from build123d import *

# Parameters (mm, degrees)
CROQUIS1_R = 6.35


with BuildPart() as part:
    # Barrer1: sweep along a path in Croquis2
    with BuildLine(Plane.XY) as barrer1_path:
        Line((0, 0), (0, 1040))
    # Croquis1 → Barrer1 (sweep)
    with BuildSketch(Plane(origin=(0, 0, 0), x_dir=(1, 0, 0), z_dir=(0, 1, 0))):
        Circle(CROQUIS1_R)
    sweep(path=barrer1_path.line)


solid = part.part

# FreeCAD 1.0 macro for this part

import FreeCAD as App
import Part
import Sketcher
from FreeCAD import Vector

doc = App.newDocument("Part")
body = doc.addObject("PartDesign::Body", "Body")

# Sketch on XZ plane
sketch1 = body.newObject("Sketcher::SketchObject", "Sketch")
sketch1.AttachmentSupport = (doc.getObject("XZ_Plane"), [""])
sketch1.MapMode = "FlatFace"
sketch1.addGeometry(Part.Circle(Vector(0, 0, 0), Vector(0, 0, 1), 6), False)
sketch1.addConstraint([
    Sketcher.Constraint("Coincident", 0, 3, -1, 1),
    Sketcher.Constraint("Diameter", 0, 12.7),
])

# Sketch on XY plane
sketch2 = body.newObject("Sketcher::SketchObject", "Sketch001")
sketch2.AttachmentSupport = (doc.getObject("XY_Plane"), [""])
sketch2.MapMode = "FlatFace"
sketch2.addGeometry(Part.LineSegment(Vector(0, 0, 0), Vector(0, 1040, 0)), False)
sketch2.addConstraint([
    Sketcher.Constraint("Vertical", 0),
    Sketcher.Constraint("Coincident", 0, 1, -1, 1),
    Sketcher.Constraint("DistanceY", 0, 1, 0, 2, 1040.0),
])
doc.recompute()

additivepipe = body.newObject("PartDesign::AdditivePipe", "AdditivePipe")
additivepipe.Profile = sketch1
additivepipe.Spine = (sketch2, ["Edge1"])

doc.recompute()
